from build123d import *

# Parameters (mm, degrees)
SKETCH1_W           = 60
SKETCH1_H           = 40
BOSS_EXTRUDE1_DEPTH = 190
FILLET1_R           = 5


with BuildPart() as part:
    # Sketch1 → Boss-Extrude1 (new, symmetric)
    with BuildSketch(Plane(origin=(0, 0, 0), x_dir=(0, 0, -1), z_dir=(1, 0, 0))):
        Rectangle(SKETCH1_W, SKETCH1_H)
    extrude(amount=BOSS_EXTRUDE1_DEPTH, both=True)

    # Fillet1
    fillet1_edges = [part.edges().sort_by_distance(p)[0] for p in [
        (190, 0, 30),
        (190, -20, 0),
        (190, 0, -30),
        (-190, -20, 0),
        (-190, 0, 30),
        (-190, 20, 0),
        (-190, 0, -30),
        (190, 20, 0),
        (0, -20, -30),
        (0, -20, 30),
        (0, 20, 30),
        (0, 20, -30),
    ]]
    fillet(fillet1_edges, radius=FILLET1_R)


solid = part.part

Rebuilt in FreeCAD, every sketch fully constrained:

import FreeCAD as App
import Part
import Sketcher
from FreeCAD import Vector
Q = App.Units.Quantity


def add_polygon(sketch, points):
    """Adds a closed chain of lines whose ends are joined by coincident constraints."""
    first, n = sketch.GeometryCount, len(points)
    for a, b in zip(points, points[1:] + points[:1]):
        sketch.addGeometry(Part.LineSegment(App.Vector(*a, 0), App.Vector(*b, 0)), False)
    for i in range(n):
        sketch.addConstraint(Sketcher.Constraint("Coincident", first + i, 2, first + (i + 1) % n, 1))

doc = App.newDocument("Part")
body = doc.addObject("PartDesign::Body", "Body")

# Sketch on YZ plane
sketch1 = doc.addObject("Sketcher::SketchObject", "Sketch")
body.addObject(sketch1)
sketch1.AttachmentSupport = (doc.YZ_Plane, [""])
sketch1.MapMode = "FlatFace"
add_polygon(sketch1, [(20, 30), (-20, 30), (-20, -30), (20, -30)])  # lines 0-3
sketch1.addConstraint([
    Sketcher.Constraint("Horizontal", 0),
    Sketcher.Constraint("Vertical", 1),
    Sketcher.Constraint("Horizontal", 2),
    Sketcher.Constraint("Vertical", 3),
    Sketcher.Constraint("Symmetric", 0, 2, 2, 2, -1, 1),
    Sketcher.Constraint("DistanceX", 0, 2, 0, 1, Q("40 mm")),
    Sketcher.Constraint("DistanceY", 1, 2, 1, 1, Q("60 mm")),
])
pad1 = doc.addObject("PartDesign::Pad", "Pad")
body.addObject(pad1)
pad1.Profile = sketch1
pad1.Length = 380
pad1.Midplane = True
doc.recompute()

fillet = doc.addObject("PartDesign::Fillet", "Fillet")
body.addObject(fillet)
fillet.Base = (pad1, ["Edge1"])
fillet.UseAllEdges = True
fillet.Radius = 5

doc.recompute()
